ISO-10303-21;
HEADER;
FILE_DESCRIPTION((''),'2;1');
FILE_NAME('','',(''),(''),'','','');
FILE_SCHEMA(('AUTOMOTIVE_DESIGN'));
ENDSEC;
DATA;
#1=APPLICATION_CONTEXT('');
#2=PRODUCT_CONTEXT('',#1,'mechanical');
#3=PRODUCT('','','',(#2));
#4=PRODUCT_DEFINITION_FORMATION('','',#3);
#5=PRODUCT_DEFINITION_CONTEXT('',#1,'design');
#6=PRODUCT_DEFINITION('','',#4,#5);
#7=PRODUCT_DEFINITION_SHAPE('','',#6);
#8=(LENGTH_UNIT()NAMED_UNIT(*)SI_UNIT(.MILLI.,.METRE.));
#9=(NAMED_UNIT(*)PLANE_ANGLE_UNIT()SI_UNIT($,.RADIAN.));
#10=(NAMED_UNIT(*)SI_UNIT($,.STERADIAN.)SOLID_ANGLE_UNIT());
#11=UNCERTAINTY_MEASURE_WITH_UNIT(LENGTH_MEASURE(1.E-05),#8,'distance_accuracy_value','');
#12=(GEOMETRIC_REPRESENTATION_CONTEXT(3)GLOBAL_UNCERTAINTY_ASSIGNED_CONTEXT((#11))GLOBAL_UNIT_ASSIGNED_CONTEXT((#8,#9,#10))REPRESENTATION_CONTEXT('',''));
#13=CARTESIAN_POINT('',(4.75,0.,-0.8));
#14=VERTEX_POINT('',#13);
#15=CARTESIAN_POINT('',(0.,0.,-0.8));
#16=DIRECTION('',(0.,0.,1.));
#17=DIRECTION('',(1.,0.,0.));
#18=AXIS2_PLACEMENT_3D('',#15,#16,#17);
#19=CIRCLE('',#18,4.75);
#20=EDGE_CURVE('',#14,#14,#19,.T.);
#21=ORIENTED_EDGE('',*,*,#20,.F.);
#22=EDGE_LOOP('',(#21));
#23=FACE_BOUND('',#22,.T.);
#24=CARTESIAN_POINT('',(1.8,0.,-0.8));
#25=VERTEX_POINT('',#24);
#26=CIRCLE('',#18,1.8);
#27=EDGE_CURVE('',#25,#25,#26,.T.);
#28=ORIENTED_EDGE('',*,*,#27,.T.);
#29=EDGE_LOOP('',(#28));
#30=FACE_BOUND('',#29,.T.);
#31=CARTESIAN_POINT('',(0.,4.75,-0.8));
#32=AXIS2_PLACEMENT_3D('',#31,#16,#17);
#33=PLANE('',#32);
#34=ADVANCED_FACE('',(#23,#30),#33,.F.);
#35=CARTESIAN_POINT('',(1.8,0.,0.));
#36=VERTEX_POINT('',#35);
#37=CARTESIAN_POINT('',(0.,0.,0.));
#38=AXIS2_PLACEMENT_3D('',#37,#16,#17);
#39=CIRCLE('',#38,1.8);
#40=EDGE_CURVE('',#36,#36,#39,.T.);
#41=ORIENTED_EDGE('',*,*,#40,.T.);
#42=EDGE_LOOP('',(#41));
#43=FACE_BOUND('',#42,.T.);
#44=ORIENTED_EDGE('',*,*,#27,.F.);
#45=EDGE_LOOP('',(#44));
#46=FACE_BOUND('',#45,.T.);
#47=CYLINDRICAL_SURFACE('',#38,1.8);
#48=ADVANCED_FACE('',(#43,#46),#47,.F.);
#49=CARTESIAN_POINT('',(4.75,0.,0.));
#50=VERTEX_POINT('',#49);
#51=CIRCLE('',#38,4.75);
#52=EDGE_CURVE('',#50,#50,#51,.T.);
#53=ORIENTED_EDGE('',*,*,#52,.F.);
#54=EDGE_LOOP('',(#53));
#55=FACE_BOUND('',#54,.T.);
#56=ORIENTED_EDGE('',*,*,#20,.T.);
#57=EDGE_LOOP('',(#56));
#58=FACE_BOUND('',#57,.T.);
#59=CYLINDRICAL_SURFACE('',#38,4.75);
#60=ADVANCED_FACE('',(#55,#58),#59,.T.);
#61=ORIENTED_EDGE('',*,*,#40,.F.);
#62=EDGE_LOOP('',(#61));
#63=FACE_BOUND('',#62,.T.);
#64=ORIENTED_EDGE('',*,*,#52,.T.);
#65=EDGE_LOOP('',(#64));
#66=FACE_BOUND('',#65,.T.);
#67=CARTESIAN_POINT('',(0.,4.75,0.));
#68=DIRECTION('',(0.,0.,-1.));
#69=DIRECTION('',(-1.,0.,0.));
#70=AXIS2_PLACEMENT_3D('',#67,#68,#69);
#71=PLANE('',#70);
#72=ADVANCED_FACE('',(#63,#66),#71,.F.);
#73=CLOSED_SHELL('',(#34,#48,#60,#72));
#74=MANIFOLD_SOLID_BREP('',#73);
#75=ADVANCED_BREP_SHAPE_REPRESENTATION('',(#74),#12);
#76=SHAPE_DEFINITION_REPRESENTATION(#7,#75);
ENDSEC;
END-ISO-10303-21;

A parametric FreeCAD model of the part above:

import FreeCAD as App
import Part
import Sketcher
Q = App.Units.Quantity


def add_polygon(sketch, points):
    """Adds a closed chain of lines whose ends are joined by coincident constraints."""
    first, n = sketch.GeometryCount, len(points)
    for a, b in zip(points, points[1:] + points[:1]):
        sketch.addGeometry(Part.LineSegment(App.Vector(*a, 0), App.Vector(*b, 0)), False)
    for i in range(n):
        sketch.addConstraint(Sketcher.Constraint("Coincident", first + i, 2, first + (i + 1) % n, 1))

doc = App.newDocument("Part")
body = doc.addObject("PartDesign::Body", "Body")

# Sketch on YZ plane
sketch1 = body.newObject("Sketcher::SketchObject", "Sketch")
sketch1.AttachmentSupport = (doc.getObject("YZ_Plane"), [""])
sketch1.MapMode = "FlatFace"
add_polygon(sketch1, [(4.8, 0), (1.8, 0), (1.8, -0.8), (4.8, -0.8)])  # lines 0-3
sketch1.addConstraint([
    Sketcher.Constraint("Horizontal", 0),
    Sketcher.Constraint("Vertical", 1),
    Sketcher.Constraint("Horizontal", 2),
    Sketcher.Constraint("Vertical", 3),
    Sketcher.Constraint("PointOnObject", 0, 2, -1),
    Sketcher.Constraint("DistanceY", 1, 2, 1, 1, Q("0.8 mm")),
    Sketcher.Constraint("DistanceX", 0, 2, 0, 1, Q("2.95 mm")),
    Sketcher.Constraint("DistanceX", -1, 1, 0, 2, Q("1.8 mm")),
])
revolution = body.newObject("PartDesign::Revolution", "Revolution")
revolution.Profile = sketch1
revolution.ReferenceAxis = (sketch1, ["V_Axis"])
revolution.Angle = 360

doc.recompute()
